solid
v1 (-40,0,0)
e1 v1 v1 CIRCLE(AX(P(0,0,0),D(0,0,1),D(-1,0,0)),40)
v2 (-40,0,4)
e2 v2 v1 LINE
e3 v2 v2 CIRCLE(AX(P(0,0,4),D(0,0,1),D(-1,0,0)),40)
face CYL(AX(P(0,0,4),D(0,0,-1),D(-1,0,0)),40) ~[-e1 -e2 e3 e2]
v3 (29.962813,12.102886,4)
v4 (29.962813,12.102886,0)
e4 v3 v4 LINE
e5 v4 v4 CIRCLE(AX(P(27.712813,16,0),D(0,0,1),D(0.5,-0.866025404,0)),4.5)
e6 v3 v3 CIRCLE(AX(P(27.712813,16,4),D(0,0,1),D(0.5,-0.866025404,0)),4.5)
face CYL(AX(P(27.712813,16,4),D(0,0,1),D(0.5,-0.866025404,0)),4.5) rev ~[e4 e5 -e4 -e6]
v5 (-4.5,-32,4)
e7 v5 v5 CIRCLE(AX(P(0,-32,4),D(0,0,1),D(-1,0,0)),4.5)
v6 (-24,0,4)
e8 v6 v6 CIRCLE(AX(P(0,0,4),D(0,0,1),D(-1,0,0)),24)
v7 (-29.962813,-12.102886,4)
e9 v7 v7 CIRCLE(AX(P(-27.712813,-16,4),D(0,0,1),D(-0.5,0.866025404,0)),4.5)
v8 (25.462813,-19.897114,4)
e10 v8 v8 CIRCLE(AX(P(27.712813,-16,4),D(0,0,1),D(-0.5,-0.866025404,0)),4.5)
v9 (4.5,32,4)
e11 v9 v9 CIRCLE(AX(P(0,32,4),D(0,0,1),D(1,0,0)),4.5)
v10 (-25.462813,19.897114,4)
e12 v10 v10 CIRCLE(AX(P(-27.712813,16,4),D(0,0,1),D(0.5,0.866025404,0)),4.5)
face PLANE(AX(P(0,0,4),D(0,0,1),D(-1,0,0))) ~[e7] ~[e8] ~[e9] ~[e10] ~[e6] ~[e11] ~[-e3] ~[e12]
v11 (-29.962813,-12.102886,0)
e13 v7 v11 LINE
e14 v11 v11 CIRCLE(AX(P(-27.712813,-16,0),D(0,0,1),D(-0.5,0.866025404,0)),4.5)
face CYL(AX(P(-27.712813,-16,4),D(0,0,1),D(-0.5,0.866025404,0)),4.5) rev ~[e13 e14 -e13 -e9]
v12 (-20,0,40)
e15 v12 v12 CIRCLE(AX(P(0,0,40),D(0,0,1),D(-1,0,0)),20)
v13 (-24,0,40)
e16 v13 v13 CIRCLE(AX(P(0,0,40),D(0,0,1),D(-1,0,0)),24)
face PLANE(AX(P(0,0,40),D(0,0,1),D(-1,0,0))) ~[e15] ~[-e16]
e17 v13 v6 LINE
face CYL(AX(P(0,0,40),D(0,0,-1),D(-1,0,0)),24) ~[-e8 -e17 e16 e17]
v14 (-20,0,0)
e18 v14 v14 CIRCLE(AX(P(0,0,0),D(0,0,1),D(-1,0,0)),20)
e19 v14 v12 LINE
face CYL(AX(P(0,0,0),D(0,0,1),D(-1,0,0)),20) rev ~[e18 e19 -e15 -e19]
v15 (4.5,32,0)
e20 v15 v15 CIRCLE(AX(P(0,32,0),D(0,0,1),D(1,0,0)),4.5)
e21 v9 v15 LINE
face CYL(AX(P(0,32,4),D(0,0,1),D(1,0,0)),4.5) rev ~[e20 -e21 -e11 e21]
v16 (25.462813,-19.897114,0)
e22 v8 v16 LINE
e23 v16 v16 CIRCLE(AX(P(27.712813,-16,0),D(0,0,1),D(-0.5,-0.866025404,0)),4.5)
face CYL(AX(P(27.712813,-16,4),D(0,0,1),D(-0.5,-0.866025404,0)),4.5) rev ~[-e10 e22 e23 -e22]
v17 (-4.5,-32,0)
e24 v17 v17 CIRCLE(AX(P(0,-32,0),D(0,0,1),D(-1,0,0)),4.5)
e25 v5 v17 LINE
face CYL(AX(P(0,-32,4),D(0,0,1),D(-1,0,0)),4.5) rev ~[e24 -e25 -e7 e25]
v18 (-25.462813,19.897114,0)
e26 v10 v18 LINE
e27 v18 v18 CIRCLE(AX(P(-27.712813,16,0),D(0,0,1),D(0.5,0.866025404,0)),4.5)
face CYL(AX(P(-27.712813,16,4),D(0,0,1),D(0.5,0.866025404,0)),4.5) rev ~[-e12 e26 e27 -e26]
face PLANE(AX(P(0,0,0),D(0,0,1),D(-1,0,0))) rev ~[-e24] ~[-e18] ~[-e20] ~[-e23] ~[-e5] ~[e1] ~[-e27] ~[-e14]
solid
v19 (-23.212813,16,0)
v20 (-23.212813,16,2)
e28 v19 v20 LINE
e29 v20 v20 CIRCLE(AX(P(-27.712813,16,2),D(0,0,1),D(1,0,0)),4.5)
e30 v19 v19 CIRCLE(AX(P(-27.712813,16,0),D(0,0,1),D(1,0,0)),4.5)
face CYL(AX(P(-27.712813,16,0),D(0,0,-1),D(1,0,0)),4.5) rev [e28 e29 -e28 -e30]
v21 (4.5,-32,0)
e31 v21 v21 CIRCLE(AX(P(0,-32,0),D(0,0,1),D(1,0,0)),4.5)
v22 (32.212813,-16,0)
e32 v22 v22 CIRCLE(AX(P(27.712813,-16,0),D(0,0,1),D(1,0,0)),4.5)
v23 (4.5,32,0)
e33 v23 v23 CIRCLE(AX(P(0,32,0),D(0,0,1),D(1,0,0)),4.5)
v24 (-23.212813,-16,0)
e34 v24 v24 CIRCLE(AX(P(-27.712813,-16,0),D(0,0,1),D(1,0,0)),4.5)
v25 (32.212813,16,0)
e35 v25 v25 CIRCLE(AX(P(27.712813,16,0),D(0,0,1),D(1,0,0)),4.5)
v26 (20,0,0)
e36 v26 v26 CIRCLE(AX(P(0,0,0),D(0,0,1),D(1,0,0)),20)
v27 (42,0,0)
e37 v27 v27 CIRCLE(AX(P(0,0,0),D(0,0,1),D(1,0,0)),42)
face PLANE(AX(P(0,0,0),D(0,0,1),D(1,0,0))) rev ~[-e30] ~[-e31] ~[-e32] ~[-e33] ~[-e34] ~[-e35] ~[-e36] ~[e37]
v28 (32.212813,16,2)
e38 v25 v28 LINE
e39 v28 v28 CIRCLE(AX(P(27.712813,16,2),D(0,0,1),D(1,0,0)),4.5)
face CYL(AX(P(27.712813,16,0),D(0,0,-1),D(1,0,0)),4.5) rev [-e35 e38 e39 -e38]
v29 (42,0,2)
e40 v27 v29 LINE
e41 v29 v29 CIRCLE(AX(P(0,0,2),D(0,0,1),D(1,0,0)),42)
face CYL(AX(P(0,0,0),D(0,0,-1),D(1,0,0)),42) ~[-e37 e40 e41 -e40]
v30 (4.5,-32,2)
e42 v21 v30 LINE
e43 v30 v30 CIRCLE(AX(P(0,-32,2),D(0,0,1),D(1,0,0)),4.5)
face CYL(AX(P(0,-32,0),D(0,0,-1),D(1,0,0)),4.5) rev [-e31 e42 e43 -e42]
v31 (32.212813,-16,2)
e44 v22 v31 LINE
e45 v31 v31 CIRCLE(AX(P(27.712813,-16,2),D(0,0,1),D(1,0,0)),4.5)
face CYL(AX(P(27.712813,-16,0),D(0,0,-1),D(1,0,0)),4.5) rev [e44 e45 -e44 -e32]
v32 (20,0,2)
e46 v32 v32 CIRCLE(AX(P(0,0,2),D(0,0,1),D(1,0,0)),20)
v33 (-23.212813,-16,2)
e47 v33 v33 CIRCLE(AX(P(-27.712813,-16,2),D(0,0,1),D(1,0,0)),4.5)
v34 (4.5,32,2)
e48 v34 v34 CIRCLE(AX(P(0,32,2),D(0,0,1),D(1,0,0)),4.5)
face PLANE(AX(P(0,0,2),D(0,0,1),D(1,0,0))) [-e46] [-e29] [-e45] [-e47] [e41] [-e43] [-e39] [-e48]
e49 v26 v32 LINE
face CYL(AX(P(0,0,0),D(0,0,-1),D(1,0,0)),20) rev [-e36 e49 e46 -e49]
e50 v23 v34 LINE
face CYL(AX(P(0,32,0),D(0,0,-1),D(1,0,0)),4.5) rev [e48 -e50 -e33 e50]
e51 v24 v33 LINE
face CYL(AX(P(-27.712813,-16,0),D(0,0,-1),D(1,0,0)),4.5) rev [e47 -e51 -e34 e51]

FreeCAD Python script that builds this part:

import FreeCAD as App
import Part
import Sketcher

V = App.Vector
Q = App.Units.Quantity


def add_polygon(sketch, points):
    """Adds a closed chain of lines whose ends are joined by coincident constraints."""
    first, n = sketch.GeometryCount, len(points)
    for a, b in zip(points, points[1:] + points[:1]):
        sketch.addGeometry(Part.LineSegment(App.Vector(*a, 0), App.Vector(*b, 0)), False)
    for i in range(n):
        sketch.addConstraint(Sketcher.Constraint("Coincident", first + i, 2, first + (i + 1) % n, 1))

doc = App.newDocument("Part")
body = doc.addObject("PartDesign::Body", "Body")

sketch1 = body.newObject("Sketcher::SketchObject", "Sketch")
sketch1.AttachmentSupport = (doc.getObject("XZ_Plane"), [""])
sketch1.MapMode = "FlatFace"
add_polygon(sketch1, [(-40, 0), (-20, 0), (-20, 40), (-24, 40), (-24, 4), (-40, 4)])
sketch1.addConstraint([
    Sketcher.Constraint("Horizontal", 0),
    Sketcher.Constraint("Vertical", 1),
    Sketcher.Constraint("Horizontal", 2),
    Sketcher.Constraint("Vertical", 3),
    Sketcher.Constraint("Horizontal", 4),
    Sketcher.Constraint("Vertical", 5),
    Sketcher.Constraint("PointOnObject", 0, 2, -1),
    Sketcher.Constraint("Equal", 2, 5),
    Sketcher.Constraint("DistanceX", 0, 1, 0, 2, Q("20 mm")),
    Sketcher.Constraint("DistanceX", 2, 2, 2, 1, Q("4 mm")),
    Sketcher.Constraint("DistanceY", 1, 1, 1, 2, Q("40 mm")),
    Sketcher.Constraint("DistanceX", 0, 2, -1, 1, Q("20 mm")),
])
revolution = body.newObject("PartDesign::Revolution", "Revolution")
revolution.Profile = sketch1
revolution.ReferenceAxis = (sketch1, ["V_Axis"])
revolution.Angle = 360

sketch2 = body.newObject("Sketcher::SketchObject", "Sketch001")
sketch2.AttachmentSupport = (doc.getObject("XY_Plane"), [""])
sketch2.MapMode = "FlatFace"
sketch2.AttachmentOffset = App.Placement(V(0, 0, 4), App.Rotation())
sketch2.addGeometry(Part.Circle(V(0, -32, 0), V(0, 0, 1), 4.5), False)
sketch2.addConstraint([
    Sketcher.Constraint("PointOnObject", 0, 3, -2),
    Sketcher.Constraint("Diameter", 0, Q("9 mm")),
    Sketcher.Constraint("DistanceY", 0, 3, -1, 1, Q("32 mm")),
])
pocket1 = body.newObject("PartDesign::Pocket", "Pocket")
pocket1.Profile = sketch2
pocket1.Length = 4
doc.recompute()

polarpattern = body.newObject("PartDesign::PolarPattern", "PolarPattern")
polarpattern.Originals = [pocket1]
polarpattern.Axis = (doc.getObject("Z_Axis"), [""])
polarpattern.Angle = 360
polarpattern.Occurrences = 6
body.Tip = polarpattern
body2 = doc.addObject("PartDesign::Body", "Body001")

sketch3 = body2.newObject("Sketcher::SketchObject", "Sketch002")
sketch3.AttachmentSupport = (doc.getObject("XY_Plane001"), [""])
sketch3.MapMode = "FlatFace"
sketch3.addGeometry([
    Part.Circle(V(0, 0, 0), V(0, 0, 1), 42),
    Part.Circle(V(-27.712813, -16, 0), V(0, 0, 1), 4.5),
    Part.Circle(V(0, -32, 0), V(0, 0, 1), 4.5),
    Part.Circle(V(27.712813, -16, 0), V(0, 0, 1), 4.5),
    Part.Circle(V(-27.712813, 16, 0), V(0, 0, 1), 4.5),
    Part.Circle(V(0, 0, 0), V(0, 0, 1), 20),
    Part.Circle(V(27.712813, 16, 0), V(0, 0, 1), 4.5),
    Part.Circle(V(0, 32, 0), V(0, 0, 1), 4.5),
], False)
sketch3.addConstraint([
    Sketcher.Constraint("Coincident", 0, 3, -1, 1),
    Sketcher.Constraint("Coincident", 5, 3, -1, 1),
    Sketcher.Constraint("Equal", 1, 2),
    Sketcher.Constraint("Equal", 2, 3),
    Sketcher.Constraint("Equal", 3, 4),
    Sketcher.Constraint("Equal", 4, 6),
    Sketcher.Constraint("Equal", 6, 7),
    Sketcher.Constraint("Symmetric", 3, 3, 4, 3, -1, 1),
    Sketcher.Constraint("Symmetric", 1, 3, 6, 3, -1, 1),
    Sketcher.Constraint("Symmetric", 2, 3, 7, 3, -1, 1),
    Sketcher.Constraint("Symmetric", 1, 3, 3, 3, -2),
    Sketcher.Constraint("PointOnObject", 2, 3, -2),
    Sketcher.Constraint("Diameter", 0, Q("84 mm")),
    Sketcher.Constraint("Diameter", 1, Q("9 mm")),
    Sketcher.Constraint("Diameter", 5, Q("40 mm")),
    Sketcher.Constraint("DistanceY", 1, 3, -1, 1, Q("16 mm")),
    Sketcher.Constraint("DistanceY", 2, 3, -1, 1, Q("32 mm")),
    Sketcher.Constraint("DistanceX", 1, 3, -1, 1, Q("27.712813 mm")),
])
pad1 = body2.newObject("PartDesign::Pad", "Pad")
pad1.Profile = sketch3
pad1.Length = 2

doc.recompute()
